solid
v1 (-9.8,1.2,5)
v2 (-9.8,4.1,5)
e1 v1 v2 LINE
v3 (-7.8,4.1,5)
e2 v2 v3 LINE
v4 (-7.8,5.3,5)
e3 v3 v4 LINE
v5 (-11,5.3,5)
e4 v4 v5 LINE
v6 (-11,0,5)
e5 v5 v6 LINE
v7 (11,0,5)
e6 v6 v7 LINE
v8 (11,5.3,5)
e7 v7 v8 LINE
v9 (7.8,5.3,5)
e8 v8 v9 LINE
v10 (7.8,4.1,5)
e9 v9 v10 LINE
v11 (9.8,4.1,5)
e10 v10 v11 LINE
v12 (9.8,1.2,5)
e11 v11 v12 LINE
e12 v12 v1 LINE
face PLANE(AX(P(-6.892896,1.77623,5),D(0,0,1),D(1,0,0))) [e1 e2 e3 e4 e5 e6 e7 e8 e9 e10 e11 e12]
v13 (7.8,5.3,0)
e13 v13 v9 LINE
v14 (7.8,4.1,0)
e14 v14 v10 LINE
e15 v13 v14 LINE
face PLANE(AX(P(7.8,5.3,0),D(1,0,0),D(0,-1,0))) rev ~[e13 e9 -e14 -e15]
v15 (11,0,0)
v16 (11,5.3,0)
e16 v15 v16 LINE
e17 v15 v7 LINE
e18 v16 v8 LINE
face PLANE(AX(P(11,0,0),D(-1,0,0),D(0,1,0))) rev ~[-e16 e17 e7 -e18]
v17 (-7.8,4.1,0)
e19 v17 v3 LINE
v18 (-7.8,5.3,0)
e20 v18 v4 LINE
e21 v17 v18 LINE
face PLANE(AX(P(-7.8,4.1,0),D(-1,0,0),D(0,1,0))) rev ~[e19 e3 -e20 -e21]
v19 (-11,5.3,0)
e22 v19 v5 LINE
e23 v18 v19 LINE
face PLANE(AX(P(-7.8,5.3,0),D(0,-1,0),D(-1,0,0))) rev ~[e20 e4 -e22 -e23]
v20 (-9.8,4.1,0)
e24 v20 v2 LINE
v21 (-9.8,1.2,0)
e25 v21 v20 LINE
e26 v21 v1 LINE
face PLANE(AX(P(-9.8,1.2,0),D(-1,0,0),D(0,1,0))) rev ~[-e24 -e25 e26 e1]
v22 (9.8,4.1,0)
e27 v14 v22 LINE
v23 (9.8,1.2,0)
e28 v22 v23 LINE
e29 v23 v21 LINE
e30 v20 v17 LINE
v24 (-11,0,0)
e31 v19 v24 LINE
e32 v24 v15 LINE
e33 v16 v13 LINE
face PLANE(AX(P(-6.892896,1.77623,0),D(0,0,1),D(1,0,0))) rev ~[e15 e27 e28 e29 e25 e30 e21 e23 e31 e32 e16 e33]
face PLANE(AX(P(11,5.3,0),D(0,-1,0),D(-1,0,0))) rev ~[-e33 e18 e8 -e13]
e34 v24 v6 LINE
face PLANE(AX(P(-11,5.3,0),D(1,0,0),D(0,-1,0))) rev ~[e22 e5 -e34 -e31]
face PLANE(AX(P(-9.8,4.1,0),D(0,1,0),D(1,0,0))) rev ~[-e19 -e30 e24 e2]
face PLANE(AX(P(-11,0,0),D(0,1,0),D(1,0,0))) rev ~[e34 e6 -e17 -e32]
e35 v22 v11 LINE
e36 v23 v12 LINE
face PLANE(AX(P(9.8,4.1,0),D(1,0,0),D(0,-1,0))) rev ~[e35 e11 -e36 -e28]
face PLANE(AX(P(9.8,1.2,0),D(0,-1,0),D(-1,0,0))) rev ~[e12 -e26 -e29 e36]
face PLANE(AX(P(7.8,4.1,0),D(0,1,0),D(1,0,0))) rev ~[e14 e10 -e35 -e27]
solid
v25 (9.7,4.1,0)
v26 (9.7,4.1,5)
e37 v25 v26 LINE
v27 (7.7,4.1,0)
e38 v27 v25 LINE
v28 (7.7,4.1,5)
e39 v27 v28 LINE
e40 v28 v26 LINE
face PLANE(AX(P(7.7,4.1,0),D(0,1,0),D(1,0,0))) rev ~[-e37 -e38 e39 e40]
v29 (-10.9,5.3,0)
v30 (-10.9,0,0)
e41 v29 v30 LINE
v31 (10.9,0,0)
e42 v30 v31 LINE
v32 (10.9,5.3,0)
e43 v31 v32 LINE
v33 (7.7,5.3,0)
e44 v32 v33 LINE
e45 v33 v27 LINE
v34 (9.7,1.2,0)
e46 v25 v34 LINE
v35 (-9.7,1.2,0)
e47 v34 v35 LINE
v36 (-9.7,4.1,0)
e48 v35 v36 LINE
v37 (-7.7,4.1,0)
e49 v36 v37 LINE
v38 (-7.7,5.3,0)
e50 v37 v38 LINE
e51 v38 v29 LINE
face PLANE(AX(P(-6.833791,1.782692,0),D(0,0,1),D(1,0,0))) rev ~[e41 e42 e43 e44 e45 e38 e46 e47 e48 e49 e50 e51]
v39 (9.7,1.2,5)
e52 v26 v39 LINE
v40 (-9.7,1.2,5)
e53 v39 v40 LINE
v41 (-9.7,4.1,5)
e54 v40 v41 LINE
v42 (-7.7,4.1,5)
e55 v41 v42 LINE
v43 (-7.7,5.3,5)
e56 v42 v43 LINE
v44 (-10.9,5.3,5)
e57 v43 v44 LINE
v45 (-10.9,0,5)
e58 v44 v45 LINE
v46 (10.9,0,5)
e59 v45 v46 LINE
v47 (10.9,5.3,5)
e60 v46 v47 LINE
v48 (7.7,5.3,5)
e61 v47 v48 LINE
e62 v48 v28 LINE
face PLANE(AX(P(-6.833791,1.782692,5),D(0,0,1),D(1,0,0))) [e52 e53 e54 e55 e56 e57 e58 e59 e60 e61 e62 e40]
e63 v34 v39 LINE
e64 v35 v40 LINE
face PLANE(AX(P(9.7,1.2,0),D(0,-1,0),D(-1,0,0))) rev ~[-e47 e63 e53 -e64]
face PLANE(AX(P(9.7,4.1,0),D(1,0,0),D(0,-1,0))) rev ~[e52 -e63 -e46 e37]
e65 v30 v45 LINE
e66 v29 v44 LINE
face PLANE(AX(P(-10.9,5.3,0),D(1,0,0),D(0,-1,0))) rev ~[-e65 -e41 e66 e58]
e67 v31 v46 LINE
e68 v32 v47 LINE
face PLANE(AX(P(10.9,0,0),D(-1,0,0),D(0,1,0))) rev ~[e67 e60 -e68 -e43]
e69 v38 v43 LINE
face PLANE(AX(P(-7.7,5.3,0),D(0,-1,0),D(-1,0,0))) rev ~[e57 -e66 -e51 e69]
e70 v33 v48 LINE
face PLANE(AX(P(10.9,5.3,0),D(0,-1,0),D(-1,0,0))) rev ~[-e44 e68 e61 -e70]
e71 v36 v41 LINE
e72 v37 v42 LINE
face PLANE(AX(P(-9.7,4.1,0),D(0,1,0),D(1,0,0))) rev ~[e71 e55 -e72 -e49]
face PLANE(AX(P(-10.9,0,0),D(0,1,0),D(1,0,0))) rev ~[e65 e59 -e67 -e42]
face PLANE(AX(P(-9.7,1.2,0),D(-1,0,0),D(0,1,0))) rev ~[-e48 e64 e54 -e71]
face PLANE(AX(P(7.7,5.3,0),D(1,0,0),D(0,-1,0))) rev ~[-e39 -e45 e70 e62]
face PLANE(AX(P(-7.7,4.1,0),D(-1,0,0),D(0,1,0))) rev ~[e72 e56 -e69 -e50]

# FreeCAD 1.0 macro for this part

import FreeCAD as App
import Part
import Sketcher

doc = App.newDocument("Part")
body = doc.addObject("PartDesign::Body", "Body")

sketch1 = doc.addObject("Sketcher::SketchObject", "Sketch")
body.addObject(sketch1)
sketch1.AttachmentSupport = (doc.XY_Plane, [""])
sketch1.MapMode = "FlatFace"
sketch1.addGeometry(Part.LineSegment(App.Vector(-11, 0, 0), App.Vector(11, 0, 0)), False)
sketch1.addGeometry(Part.LineSegment(App.Vector(11, 0, 0), App.Vector(11, 5.3, 0)), False)
sketch1.addGeometry(Part.LineSegment(App.Vector(11, 5.3, 0), App.Vector(7.8, 5.3, 0)), False)
sketch1.addGeometry(Part.LineSegment(App.Vector(7.8, 5.3, 0), App.Vector(7.8, 4.1, 0)), False)
sketch1.addGeometry(Part.LineSegment(App.Vector(7.8, 4.1, 0), App.Vector(9.8, 4.1, 0)), False)
sketch1.addGeometry(Part.LineSegment(App.Vector(9.8, 4.1, 0), App.Vector(9.8, 1.2, 0)), False)
sketch1.addGeometry(Part.LineSegment(App.Vector(9.8, 1.2, 0), App.Vector(-9.8, 1.2, 0)), False)
sketch1.addGeometry(Part.LineSegment(App.Vector(-9.8, 1.2, 0), App.Vector(-9.8, 4.1, 0)), False)
sketch1.addGeometry(Part.LineSegment(App.Vector(-9.8, 4.1, 0), App.Vector(-7.8, 4.1, 0)), False)
sketch1.addGeometry(Part.LineSegment(App.Vector(-7.8, 4.1, 0), App.Vector(-7.8, 5.3, 0)), False)
sketch1.addGeometry(Part.LineSegment(App.Vector(-7.8, 5.3, 0), App.Vector(-11, 5.3, 0)), False)
sketch1.addGeometry(Part.LineSegment(App.Vector(-11, 5.3, 0), App.Vector(-11, 0, 0)), False)
sketch1.addConstraint(Sketcher.Constraint("Coincident", 0, 2, 1, 1))
sketch1.addConstraint(Sketcher.Constraint("Coincident", 1, 2, 2, 1))
sketch1.addConstraint(Sketcher.Constraint("Coincident", 2, 2, 3, 1))
sketch1.addConstraint(Sketcher.Constraint("Coincident", 3, 2, 4, 1))
sketch1.addConstraint(Sketcher.Constraint("Coincident", 4, 2, 5, 1))
sketch1.addConstraint(Sketcher.Constraint("Coincident", 5, 2, 6, 1))
sketch1.addConstraint(Sketcher.Constraint("Coincident", 6, 2, 7, 1))
sketch1.addConstraint(Sketcher.Constraint("Coincident", 7, 2, 8, 1))
sketch1.addConstraint(Sketcher.Constraint("Coincident", 8, 2, 9, 1))
sketch1.addConstraint(Sketcher.Constraint("Coincident", 9, 2, 10, 1))
sketch1.addConstraint(Sketcher.Constraint("Coincident", 10, 2, 11, 1))
sketch1.addConstraint(Sketcher.Constraint("Coincident", 11, 2, 0, 1))
sketch1.addConstraint(Sketcher.Constraint("Horizontal", 0))
sketch1.addConstraint(Sketcher.Constraint("Vertical", 1))
sketch1.addConstraint(Sketcher.Constraint("Horizontal", 2))
sketch1.addConstraint(Sketcher.Constraint("Vertical", 3))
sketch1.addConstraint(Sketcher.Constraint("Horizontal", 4))
sketch1.addConstraint(Sketcher.Constraint("Vertical", 5))
sketch1.addConstraint(Sketcher.Constraint("Horizontal", 6))
sketch1.addConstraint(Sketcher.Constraint("Vertical", 7))
sketch1.addConstraint(Sketcher.Constraint("Horizontal", 8))
sketch1.addConstraint(Sketcher.Constraint("Vertical", 9))
sketch1.addConstraint(Sketcher.Constraint("Horizontal", 10))
sketch1.addConstraint(Sketcher.Constraint("Vertical", 11))
sketch1.addConstraint(Sketcher.Constraint("Symmetric", 0, 2, 11, 2, -1, 1))
sketch1.addConstraint(Sketcher.Constraint("Symmetric", 4, 2, 7, 2, -2))
sketch1.addConstraint(Sketcher.Constraint("Symmetric", 2, 2, 9, 2, -2))
sketch1.addConstraint(Sketcher.Constraint("DistanceX", 0, 1, 0, 2, 22.0))
sketch1.addConstraint(Sketcher.Constraint("DistanceX", 4, 1, 4, 2, 2.0))
sketch1.addConstraint(Sketcher.Constraint("DistanceX", 2, 2, 2, 1, 3.2))
sketch1.addConstraint(Sketcher.Constraint("DistanceY", 1, 1, 1, 2, 5.3))
sketch1.addConstraint(Sketcher.Constraint("DistanceY", 3, 2, 3, 1, 1.2))
sketch1.addConstraint(Sketcher.Constraint("DistanceY", 5, 2, 5, 1, 2.9))
pad1 = doc.addObject("PartDesign::Pad", "Pad")
body.addObject(pad1)
pad1.Profile = sketch1
pad1.Length = 5
body2 = doc.addObject("PartDesign::Body", "Body001")

sketch2 = doc.addObject("Sketcher::SketchObject", "Sketch001")
body2.addObject(sketch2)
sketch2.AttachmentSupport = (doc.getObject("XY_Plane001"), [""])
sketch2.MapMode = "FlatFace"
sketch2.addGeometry(Part.LineSegment(App.Vector(-10.9, 0, 0), App.Vector(10.9, 0, 0)), False)
sketch2.addGeometry(Part.LineSegment(App.Vector(10.9, 0, 0), App.Vector(10.9, 5.3, 0)), False)
sketch2.addGeometry(Part.LineSegment(App.Vector(10.9, 5.3, 0), App.Vector(7.7, 5.3, 0)), False)
sketch2.addGeometry(Part.LineSegment(App.Vector(7.7, 5.3, 0), App.Vector(7.7, 4.1, 0)), False)
sketch2.addGeometry(Part.LineSegment(App.Vector(7.7, 4.1, 0), App.Vector(9.7, 4.1, 0)), False)
sketch2.addGeometry(Part.LineSegment(App.Vector(9.7, 4.1, 0), App.Vector(9.7, 1.2, 0)), False)
sketch2.addGeometry(Part.LineSegment(App.Vector(9.7, 1.2, 0), App.Vector(-9.7, 1.2, 0)), False)
sketch2.addGeometry(Part.LineSegment(App.Vector(-9.7, 1.2, 0), App.Vector(-9.7, 4.1, 0)), False)
sketch2.addGeometry(Part.LineSegment(App.Vector(-9.7, 4.1, 0), App.Vector(-7.7, 4.1, 0)), False)
sketch2.addGeometry(Part.LineSegment(App.Vector(-7.7, 4.1, 0), App.Vector(-7.7, 5.3, 0)), False)
sketch2.addGeometry(Part.LineSegment(App.Vector(-7.7, 5.3, 0), App.Vector(-10.9, 5.3, 0)), False)
sketch2.addGeometry(Part.LineSegment(App.Vector(-10.9, 5.3, 0), App.Vector(-10.9, 0, 0)), False)
sketch2.addConstraint(Sketcher.Constraint("Coincident", 0, 2, 1, 1))
sketch2.addConstraint(Sketcher.Constraint("Coincident", 1, 2, 2, 1))
sketch2.addConstraint(Sketcher.Constraint("Coincident", 2, 2, 3, 1))
sketch2.addConstraint(Sketcher.Constraint("Coincident", 3, 2, 4, 1))
sketch2.addConstraint(Sketcher.Constraint("Coincident", 4, 2, 5, 1))
sketch2.addConstraint(Sketcher.Constraint("Coincident", 5, 2, 6, 1))
sketch2.addConstraint(Sketcher.Constraint("Coincident", 6, 2, 7, 1))
sketch2.addConstraint(Sketcher.Constraint("Coincident", 7, 2, 8, 1))
sketch2.addConstraint(Sketcher.Constraint("Coincident", 8, 2, 9, 1))
sketch2.addConstraint(Sketcher.Constraint("Coincident", 9, 2, 10, 1))
sketch2.addConstraint(Sketcher.Constraint("Coincident", 10, 2, 11, 1))
sketch2.addConstraint(Sketcher.Constraint("Coincident", 11, 2, 0, 1))
sketch2.addConstraint(Sketcher.Constraint("Horizontal", 0))
sketch2.addConstraint(Sketcher.Constraint("Vertical", 1))
sketch2.addConstraint(Sketcher.Constraint("Horizontal", 2))
sketch2.addConstraint(Sketcher.Constraint("Vertical", 3))
sketch2.addConstraint(Sketcher.Constraint("Horizontal", 4))
sketch2.addConstraint(Sketcher.Constraint("Vertical", 5))
sketch2.addConstraint(Sketcher.Constraint("Horizontal", 6))
sketch2.addConstraint(Sketcher.Constraint("Vertical", 7))
sketch2.addConstraint(Sketcher.Constraint("Horizontal", 8))
sketch2.addConstraint(Sketcher.Constraint("Vertical", 9))
sketch2.addConstraint(Sketcher.Constraint("Horizontal", 10))
sketch2.addConstraint(Sketcher.Constraint("Vertical", 11))
sketch2.addConstraint(Sketcher.Constraint("Symmetric", 0, 2, 11, 2, -1, 1))
sketch2.addConstraint(Sketcher.Constraint("Symmetric", 4, 2, 7, 2, -2))
sketch2.addConstraint(Sketcher.Constraint("Symmetric", 2, 2, 9, 2, -2))
sketch2.addConstraint(Sketcher.Constraint("DistanceX", 4, 1, 4, 2, 2.0))
sketch2.addConstraint(Sketcher.Constraint("DistanceX", 0, 1, 0, 2, 21.8))
sketch2.addConstraint(Sketcher.Constraint("DistanceX", 2, 2, 2, 1, 3.2))
sketch2.addConstraint(Sketcher.Constraint("DistanceY", 1, 1, 1, 2, 5.3))
sketch2.addConstraint(Sketcher.Constraint("DistanceY", 3, 2, 3, 1, 1.2))
sketch2.addConstraint(Sketcher.Constraint("DistanceY", 5, 2, 5, 1, 2.9))
pad2 = doc.addObject("PartDesign::Pad", "Pad001")
body2.addObject(pad2)
pad2.Profile = sketch2
pad2.Length = 5

doc.recompute()
